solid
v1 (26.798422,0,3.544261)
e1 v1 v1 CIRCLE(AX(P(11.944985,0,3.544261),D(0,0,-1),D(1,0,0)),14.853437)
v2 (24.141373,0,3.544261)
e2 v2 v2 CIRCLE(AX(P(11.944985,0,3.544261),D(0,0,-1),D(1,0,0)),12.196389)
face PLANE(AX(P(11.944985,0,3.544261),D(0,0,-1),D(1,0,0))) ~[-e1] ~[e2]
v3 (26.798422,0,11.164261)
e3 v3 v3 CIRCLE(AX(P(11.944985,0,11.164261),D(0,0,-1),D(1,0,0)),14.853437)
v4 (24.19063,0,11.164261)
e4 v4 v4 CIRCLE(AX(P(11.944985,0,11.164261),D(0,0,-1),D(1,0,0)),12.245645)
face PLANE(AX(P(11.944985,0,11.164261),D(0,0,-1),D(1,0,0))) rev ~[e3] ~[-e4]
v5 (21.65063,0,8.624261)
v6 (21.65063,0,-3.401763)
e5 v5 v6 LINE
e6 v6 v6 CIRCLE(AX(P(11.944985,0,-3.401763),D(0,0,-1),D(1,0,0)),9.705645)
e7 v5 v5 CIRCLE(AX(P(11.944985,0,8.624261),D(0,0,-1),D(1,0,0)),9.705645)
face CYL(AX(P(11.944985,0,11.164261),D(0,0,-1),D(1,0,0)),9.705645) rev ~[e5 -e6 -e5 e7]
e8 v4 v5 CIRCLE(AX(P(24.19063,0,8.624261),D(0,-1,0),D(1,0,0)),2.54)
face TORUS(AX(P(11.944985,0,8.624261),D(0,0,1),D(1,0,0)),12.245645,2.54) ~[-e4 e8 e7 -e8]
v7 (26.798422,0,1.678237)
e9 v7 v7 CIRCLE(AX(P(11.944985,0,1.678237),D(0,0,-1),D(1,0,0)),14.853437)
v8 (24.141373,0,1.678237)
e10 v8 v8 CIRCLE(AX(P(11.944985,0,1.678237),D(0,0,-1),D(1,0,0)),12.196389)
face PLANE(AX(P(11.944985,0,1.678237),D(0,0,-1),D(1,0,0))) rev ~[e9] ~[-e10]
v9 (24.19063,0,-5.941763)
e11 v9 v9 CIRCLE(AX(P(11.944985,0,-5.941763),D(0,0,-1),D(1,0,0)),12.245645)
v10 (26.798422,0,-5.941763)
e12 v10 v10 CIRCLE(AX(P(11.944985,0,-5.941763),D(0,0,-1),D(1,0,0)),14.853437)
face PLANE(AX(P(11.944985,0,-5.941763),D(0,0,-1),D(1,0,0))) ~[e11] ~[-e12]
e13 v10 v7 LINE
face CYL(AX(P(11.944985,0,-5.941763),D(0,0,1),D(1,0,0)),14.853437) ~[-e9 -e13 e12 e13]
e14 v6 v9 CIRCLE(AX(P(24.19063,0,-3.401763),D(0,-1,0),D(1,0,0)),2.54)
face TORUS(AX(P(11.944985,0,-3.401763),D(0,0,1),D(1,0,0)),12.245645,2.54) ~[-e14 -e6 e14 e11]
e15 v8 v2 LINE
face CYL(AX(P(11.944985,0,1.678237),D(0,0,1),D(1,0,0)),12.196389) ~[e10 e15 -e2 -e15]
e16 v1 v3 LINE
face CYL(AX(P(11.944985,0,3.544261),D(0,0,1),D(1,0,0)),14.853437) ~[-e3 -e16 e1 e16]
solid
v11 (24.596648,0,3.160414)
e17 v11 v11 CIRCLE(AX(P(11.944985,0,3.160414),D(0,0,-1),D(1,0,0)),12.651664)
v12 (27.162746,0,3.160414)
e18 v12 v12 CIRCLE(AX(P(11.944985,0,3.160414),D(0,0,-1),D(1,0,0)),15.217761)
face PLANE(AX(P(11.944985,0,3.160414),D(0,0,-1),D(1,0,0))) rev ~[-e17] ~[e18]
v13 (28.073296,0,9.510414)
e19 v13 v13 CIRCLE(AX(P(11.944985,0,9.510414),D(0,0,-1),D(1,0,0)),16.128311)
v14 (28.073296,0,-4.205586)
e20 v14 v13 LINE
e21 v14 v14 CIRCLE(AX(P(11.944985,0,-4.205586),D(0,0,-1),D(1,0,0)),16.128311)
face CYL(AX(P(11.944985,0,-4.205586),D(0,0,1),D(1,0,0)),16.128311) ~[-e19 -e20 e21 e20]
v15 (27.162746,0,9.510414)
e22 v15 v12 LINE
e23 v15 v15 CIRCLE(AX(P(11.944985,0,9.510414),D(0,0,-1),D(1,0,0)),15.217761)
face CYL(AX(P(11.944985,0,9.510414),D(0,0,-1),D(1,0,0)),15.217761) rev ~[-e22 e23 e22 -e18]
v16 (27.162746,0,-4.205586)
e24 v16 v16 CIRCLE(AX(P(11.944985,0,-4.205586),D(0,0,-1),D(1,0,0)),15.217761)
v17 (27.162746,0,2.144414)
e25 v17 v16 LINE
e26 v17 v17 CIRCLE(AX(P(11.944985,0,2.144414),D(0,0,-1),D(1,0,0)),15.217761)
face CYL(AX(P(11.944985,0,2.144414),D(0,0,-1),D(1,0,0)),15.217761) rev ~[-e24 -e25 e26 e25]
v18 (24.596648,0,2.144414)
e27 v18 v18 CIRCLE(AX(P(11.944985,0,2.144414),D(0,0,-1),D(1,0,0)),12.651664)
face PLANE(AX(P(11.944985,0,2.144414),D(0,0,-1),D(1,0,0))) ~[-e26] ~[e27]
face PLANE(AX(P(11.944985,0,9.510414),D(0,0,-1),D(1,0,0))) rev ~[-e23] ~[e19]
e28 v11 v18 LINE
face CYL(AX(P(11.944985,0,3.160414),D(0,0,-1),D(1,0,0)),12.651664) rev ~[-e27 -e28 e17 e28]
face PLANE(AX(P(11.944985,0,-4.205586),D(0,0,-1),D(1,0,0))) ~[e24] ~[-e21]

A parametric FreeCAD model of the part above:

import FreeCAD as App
import Part
import Sketcher
from FreeCAD import Vector
Q = App.Units.Quantity


def edges_at(feature, points):
    """Names of the edges that pass closest to the given points."""
    edges = feature.Shape.Edges
    near = lambda p: min(range(len(edges)), key=lambda i: edges[i].distToShape(Part.Vertex(*p))[0])
    return sorted({f"Edge{near(p) + 1}" for p in points})

doc = App.newDocument("Part")
body = doc.addObject("PartDesign::Body", "Body")

sketch1 = doc.addObject("Sketcher::SketchObject", "Sketch")
body.addObject(sketch1)
sketch1.AttachmentSupport = (doc.XZ_Plane, [""])
sketch1.MapMode = "FlatFace"
sketch1.addGeometry(Part.LineSegment(Vector(26.8, 3.5, 0), Vector(26.8, 11.2, 0)), False)
sketch1.addGeometry(Part.LineSegment(Vector(26.8, 11.2, 0), Vector(21.7, 11.2, 0)), False)
sketch1.addGeometry(Part.LineSegment(Vector(21.7, 11.2, 0), Vector(21.7, -5.9, 0)), False)
sketch1.addGeometry(Part.LineSegment(Vector(21.7, -5.9, 0), Vector(26.8, -5.9, 0)), False)
sketch1.addGeometry(Part.LineSegment(Vector(26.8, -5.9, 0), Vector(26.8, 1.7, 0)), False)
sketch1.addGeometry(Part.LineSegment(Vector(26.8, 1.7, 0), Vector(24.1, 1.7, 0)), False)
sketch1.addGeometry(Part.LineSegment(Vector(24.1, 1.7, 0), Vector(24.1, 3.5, 0)), False)
sketch1.addGeometry(Part.LineSegment(Vector(24.1, 3.5, 0), Vector(26.8, 3.5, 0)), False)
sketch1.addGeometry(Part.LineSegment(Vector(11.9, 11.2, 0), Vector(11.9, -5.9, 0)), True)
sketch1.addConstraint(Sketcher.Constraint("Coincident", 0, 2, 1, 1))
sketch1.addConstraint(Sketcher.Constraint("Coincident", 1, 2, 2, 1))
sketch1.addConstraint(Sketcher.Constraint("Coincident", 2, 2, 3, 1))
sketch1.addConstraint(Sketcher.Constraint("Coincident", 3, 2, 4, 1))
sketch1.addConstraint(Sketcher.Constraint("Coincident", 4, 2, 5, 1))
sketch1.addConstraint(Sketcher.Constraint("Coincident", 5, 2, 6, 1))
sketch1.addConstraint(Sketcher.Constraint("Coincident", 6, 2, 7, 1))
sketch1.addConstraint(Sketcher.Constraint("Coincident", 7, 2, 0, 1))
sketch1.addConstraint(Sketcher.Constraint("Vertical", 0))
sketch1.addConstraint(Sketcher.Constraint("Horizontal", 1))
sketch1.addConstraint(Sketcher.Constraint("Vertical", 2))
sketch1.addConstraint(Sketcher.Constraint("Horizontal", 3))
sketch1.addConstraint(Sketcher.Constraint("Vertical", 4))
sketch1.addConstraint(Sketcher.Constraint("Horizontal", 5))
sketch1.addConstraint(Sketcher.Constraint("Vertical", 6))
sketch1.addConstraint(Sketcher.Constraint("Horizontal", 7))
sketch1.addConstraint(Sketcher.Constraint("Vertical", 8))
sketch1.addConstraint(Sketcher.Constraint("Horizontal", 1, 2, 8, 1))
sketch1.addConstraint(Sketcher.Constraint("Horizontal", 3, 2, 8, 2))
sketch1.addConstraint(Sketcher.Constraint("Vertical", 0, 2, 3, 2))
sketch1.addConstraint(Sketcher.Constraint("Equal", 0, 4))
sketch1.addConstraint(Sketcher.Constraint("DistanceY", 0, 1, 0, 2, Q("0.3 in")))
sketch1.addConstraint(Sketcher.Constraint("DistanceX", 5, 2, 5, 1, 2.657049))
sketch1.addConstraint(Sketcher.Constraint("DistanceX", 1, 2, 1, 1, 5.147792))
sketch1.addConstraint(Sketcher.Constraint("DistanceY", 2, 2, 2, 1, 17.106024))
sketch1.addConstraint(Sketcher.Constraint("DistanceX", -1, 1, 0, 2, 26.798422))
sketch1.addConstraint(Sketcher.Constraint("DistanceY", -1, 1, 0, 2, 11.164261))
sketch1.addConstraint(Sketcher.Constraint("DistanceX", 8, 1, 6, 2, 12.196389))
revolution = doc.addObject("PartDesign::Revolution", "Revolution")
body.addObject(revolution)
revolution.Profile = sketch1
revolution.ReferenceAxis = (sketch1, ["Axis0"])
revolution.Angle = 360
doc.recompute()

fillet = doc.addObject("PartDesign::Fillet", "Fillet")
body.addObject(fillet)
fillet.Base = (revolution, edges_at(revolution, [(2.239, 0, 11.164), (2.239, 0, -5.942)]))
fillet.Radius = Q("0.1 in")
body2 = doc.addObject("PartDesign::Body", "Body001")

sketch2 = doc.addObject("Sketcher::SketchObject", "Sketch001")
body2.addObject(sketch2)
sketch2.AttachmentSupport = (doc.getObject("XZ_Plane001"), [""])
sketch2.MapMode = "FlatFace"
sketch2.addGeometry(Part.LineSegment(Vector(28.1, 9.5, 0), Vector(27.2, 9.5, 0)), False)
sketch2.addGeometry(Part.LineSegment(Vector(27.2, 9.5, 0), Vector(27.2, 3.2, 0)), False)
sketch2.addGeometry(Part.LineSegment(Vector(27.2, 3.2, 0), Vector(24.6, 3.2, 0)), False)
sketch2.addGeometry(Part.LineSegment(Vector(24.6, 3.2, 0), Vector(24.6, 2.1, 0)), False)
sketch2.addGeometry(Part.LineSegment(Vector(24.6, 2.1, 0), Vector(27.2, 2.1, 0)), False)
sketch2.addGeometry(Part.LineSegment(Vector(27.2, 2.1, 0), Vector(27.2, -4.2, 0)), False)
sketch2.addGeometry(Part.LineSegment(Vector(27.2, -4.2, 0), Vector(28.1, -4.2, 0)), False)
sketch2.addGeometry(Part.LineSegment(Vector(28.1, -4.2, 0), Vector(28.1, 9.5, 0)), False)
sketch2.addGeometry(Part.LineSegment(Vector(11.9, 9.5, 0), Vector(11.9, -4.2, 0)), True)
sketch2.addConstraint(Sketcher.Constraint("Coincident", 0, 2, 1, 1))
sketch2.addConstraint(Sketcher.Constraint("Coincident", 1, 2, 2, 1))
sketch2.addConstraint(Sketcher.Constraint("Coincident", 2, 2, 3, 1))
sketch2.addConstraint(Sketcher.Constraint("Coincident", 3, 2, 4, 1))
sketch2.addConstraint(Sketcher.Constraint("Coincident", 4, 2, 5, 1))
sketch2.addConstraint(Sketcher.Constraint("Coincident", 5, 2, 6, 1))
sketch2.addConstraint(Sketcher.Constraint("Coincident", 6, 2, 7, 1))
sketch2.addConstraint(Sketcher.Constraint("Coincident", 7, 2, 0, 1))
sketch2.addConstraint(Sketcher.Constraint("Horizontal", 0))
sketch2.addConstraint(Sketcher.Constraint("Vertical", 1))
sketch2.addConstraint(Sketcher.Constraint("Horizontal", 2))
sketch2.addConstraint(Sketcher.Constraint("Vertical", 3))
sketch2.addConstraint(Sketcher.Constraint("Horizontal", 4))
sketch2.addConstraint(Sketcher.Constraint("Vertical", 5))
sketch2.addConstraint(Sketcher.Constraint("Horizontal", 6))
sketch2.addConstraint(Sketcher.Constraint("Vertical", 7))
sketch2.addConstraint(Sketcher.Constraint("Vertical", 8))
sketch2.addConstraint(Sketcher.Constraint("Horizontal", 7, 2, 8, 1))
sketch2.addConstraint(Sketcher.Constraint("Horizontal", 6, 2, 8, 2))
sketch2.addConstraint(Sketcher.Constraint("Vertical", 1, 2, 4, 2))
sketch2.addConstraint(Sketcher.Constraint("Equal", 1, 5))
sketch2.addConstraint(Sketcher.Constraint("DistanceY", 1, 2, 1, 1, Q("0.25 in")))
sketch2.addConstraint(Sketcher.Constraint("DistanceY", 3, 2, 3, 1, Q("0.04 in")))
sketch2.addConstraint(Sketcher.Constraint("DistanceX", 0, 2, 0, 1, 0.91055))
sketch2.addConstraint(Sketcher.Constraint("DistanceX", 2, 2, 2, 1, 2.566097))
sketch2.addConstraint(Sketcher.Constraint("DistanceX", -1, 1, 2, 2, 24.596648))
sketch2.addConstraint(Sketcher.Constraint("DistanceX", 8, 1, 0, 2, 15.217761))
sketch2.addConstraint(Sketcher.Constraint("DistanceY", -1, 1, 0, 2, 9.510414))
revolution2 = doc.addObject("PartDesign::Revolution", "Revolution001")
body2.addObject(revolution2)
revolution2.Profile = sketch2
revolution2.ReferenceAxis = (sketch2, ["Axis0"])
revolution2.Angle = 360

doc.recompute()
